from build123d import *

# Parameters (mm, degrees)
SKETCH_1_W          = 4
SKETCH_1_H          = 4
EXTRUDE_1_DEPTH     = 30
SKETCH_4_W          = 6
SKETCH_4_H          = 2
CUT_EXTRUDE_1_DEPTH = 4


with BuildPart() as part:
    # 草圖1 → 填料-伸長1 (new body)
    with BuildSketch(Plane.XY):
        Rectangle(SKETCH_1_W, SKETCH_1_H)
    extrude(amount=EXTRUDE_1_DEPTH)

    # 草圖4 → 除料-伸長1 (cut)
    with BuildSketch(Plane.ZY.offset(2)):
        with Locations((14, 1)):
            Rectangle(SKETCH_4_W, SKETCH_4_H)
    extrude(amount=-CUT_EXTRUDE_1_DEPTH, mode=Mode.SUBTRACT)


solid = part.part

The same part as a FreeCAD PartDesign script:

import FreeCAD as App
import Part
import Sketcher

V = App.Vector

doc = App.newDocument("Part")
body = doc.addObject("PartDesign::Body", "Body")

# Sketch on XY plane
sketch1 = body.newObject("Sketcher::SketchObject", "Sketch")
sketch1.AttachmentSupport = (doc.getObject("XY_Plane"), [""])
sketch1.MapMode = "FlatFace"
sketch1.addGeometry(Part.LineSegment(V(-2, 2, 0), V(-2, -2, 0)), False)
sketch1.addGeometry(Part.LineSegment(V(-2, -2, 0), V(2, -2, 0)), False)
sketch1.addGeometry(Part.LineSegment(V(2, -2, 0), V(2, 2, 0)), False)
sketch1.addGeometry(Part.LineSegment(V(2, 2, 0), V(-2, 2, 0)), False)
sketch1.addConstraint(Sketcher.Constraint("Coincident", 0, 2, 1, 1))
sketch1.addConstraint(Sketcher.Constraint("Coincident", 1, 2, 2, 1))
sketch1.addConstraint(Sketcher.Constraint("Coincident", 2, 2, 3, 1))
sketch1.addConstraint(Sketcher.Constraint("Coincident", 3, 2, 0, 1))
sketch1.addConstraint(Sketcher.Constraint("Vertical", 0))
sketch1.addConstraint(Sketcher.Constraint("Horizontal", 1))
sketch1.addConstraint(Sketcher.Constraint("Vertical", 2))
sketch1.addConstraint(Sketcher.Constraint("Horizontal", 3))
sketch1.addConstraint(Sketcher.Constraint("Symmetric", 0, 2, 2, 2, -1, 1))
sketch1.addConstraint(Sketcher.Constraint("Equal", 3, 0))
sketch1.addConstraint(Sketcher.Constraint("DistanceX", 1, 1, 1, 2, 4.0))
pad1 = body.newObject("PartDesign::Pad", "Pad")
pad1.Profile = sketch1
pad1.Length = 30

# Sketch on YZ plane
sketch2 = body.newObject("Sketcher::SketchObject", "Sketch001")
sketch2.AttachmentSupport = (doc.getObject("YZ_Plane"), [""])
sketch2.MapMode = "FlatFace"
sketch2.AttachmentOffset = App.Placement(V(0, 0, -2), App.Rotation())
sketch2.addGeometry(Part.LineSegment(V(2, 11, 0), V(0, 11, 0)), False)
sketch2.addGeometry(Part.LineSegment(V(0, 11, 0), V(0, 17, 0)), False)
sketch2.addGeometry(Part.LineSegment(V(0, 17, 0), V(2, 17, 0)), False)
sketch2.addGeometry(Part.LineSegment(V(2, 17, 0), V(2, 11, 0)), False)
sketch2.addConstraint(Sketcher.Constraint("Coincident", 0, 2, 1, 1))
sketch2.addConstraint(Sketcher.Constraint("Coincident", 1, 2, 2, 1))
sketch2.addConstraint(Sketcher.Constraint("Coincident", 2, 2, 3, 1))
sketch2.addConstraint(Sketcher.Constraint("Coincident", 3, 2, 0, 1))
sketch2.addConstraint(Sketcher.Constraint("Horizontal", 0))
sketch2.addConstraint(Sketcher.Constraint("Vertical", 1))
sketch2.addConstraint(Sketcher.Constraint("Horizontal", 2))
sketch2.addConstraint(Sketcher.Constraint("Vertical", 3))
sketch2.addConstraint(Sketcher.Constraint("PointOnObject", 0, 2, -2))
sketch2.addConstraint(Sketcher.Constraint("DistanceX", 0, 2, 0, 1, 2.0))
sketch2.addConstraint(Sketcher.Constraint("DistanceY", 1, 1, 1, 2, 6.0))
sketch2.addConstraint(Sketcher.Constraint("DistanceY", -1, 1, 0, 2, 11.0))
pocket1 = body.newObject("PartDesign::Pocket", "Pocket")
pocket1.Profile = sketch2
pocket1.Length = 4
pocket1.Reversed = True

doc.recompute()
